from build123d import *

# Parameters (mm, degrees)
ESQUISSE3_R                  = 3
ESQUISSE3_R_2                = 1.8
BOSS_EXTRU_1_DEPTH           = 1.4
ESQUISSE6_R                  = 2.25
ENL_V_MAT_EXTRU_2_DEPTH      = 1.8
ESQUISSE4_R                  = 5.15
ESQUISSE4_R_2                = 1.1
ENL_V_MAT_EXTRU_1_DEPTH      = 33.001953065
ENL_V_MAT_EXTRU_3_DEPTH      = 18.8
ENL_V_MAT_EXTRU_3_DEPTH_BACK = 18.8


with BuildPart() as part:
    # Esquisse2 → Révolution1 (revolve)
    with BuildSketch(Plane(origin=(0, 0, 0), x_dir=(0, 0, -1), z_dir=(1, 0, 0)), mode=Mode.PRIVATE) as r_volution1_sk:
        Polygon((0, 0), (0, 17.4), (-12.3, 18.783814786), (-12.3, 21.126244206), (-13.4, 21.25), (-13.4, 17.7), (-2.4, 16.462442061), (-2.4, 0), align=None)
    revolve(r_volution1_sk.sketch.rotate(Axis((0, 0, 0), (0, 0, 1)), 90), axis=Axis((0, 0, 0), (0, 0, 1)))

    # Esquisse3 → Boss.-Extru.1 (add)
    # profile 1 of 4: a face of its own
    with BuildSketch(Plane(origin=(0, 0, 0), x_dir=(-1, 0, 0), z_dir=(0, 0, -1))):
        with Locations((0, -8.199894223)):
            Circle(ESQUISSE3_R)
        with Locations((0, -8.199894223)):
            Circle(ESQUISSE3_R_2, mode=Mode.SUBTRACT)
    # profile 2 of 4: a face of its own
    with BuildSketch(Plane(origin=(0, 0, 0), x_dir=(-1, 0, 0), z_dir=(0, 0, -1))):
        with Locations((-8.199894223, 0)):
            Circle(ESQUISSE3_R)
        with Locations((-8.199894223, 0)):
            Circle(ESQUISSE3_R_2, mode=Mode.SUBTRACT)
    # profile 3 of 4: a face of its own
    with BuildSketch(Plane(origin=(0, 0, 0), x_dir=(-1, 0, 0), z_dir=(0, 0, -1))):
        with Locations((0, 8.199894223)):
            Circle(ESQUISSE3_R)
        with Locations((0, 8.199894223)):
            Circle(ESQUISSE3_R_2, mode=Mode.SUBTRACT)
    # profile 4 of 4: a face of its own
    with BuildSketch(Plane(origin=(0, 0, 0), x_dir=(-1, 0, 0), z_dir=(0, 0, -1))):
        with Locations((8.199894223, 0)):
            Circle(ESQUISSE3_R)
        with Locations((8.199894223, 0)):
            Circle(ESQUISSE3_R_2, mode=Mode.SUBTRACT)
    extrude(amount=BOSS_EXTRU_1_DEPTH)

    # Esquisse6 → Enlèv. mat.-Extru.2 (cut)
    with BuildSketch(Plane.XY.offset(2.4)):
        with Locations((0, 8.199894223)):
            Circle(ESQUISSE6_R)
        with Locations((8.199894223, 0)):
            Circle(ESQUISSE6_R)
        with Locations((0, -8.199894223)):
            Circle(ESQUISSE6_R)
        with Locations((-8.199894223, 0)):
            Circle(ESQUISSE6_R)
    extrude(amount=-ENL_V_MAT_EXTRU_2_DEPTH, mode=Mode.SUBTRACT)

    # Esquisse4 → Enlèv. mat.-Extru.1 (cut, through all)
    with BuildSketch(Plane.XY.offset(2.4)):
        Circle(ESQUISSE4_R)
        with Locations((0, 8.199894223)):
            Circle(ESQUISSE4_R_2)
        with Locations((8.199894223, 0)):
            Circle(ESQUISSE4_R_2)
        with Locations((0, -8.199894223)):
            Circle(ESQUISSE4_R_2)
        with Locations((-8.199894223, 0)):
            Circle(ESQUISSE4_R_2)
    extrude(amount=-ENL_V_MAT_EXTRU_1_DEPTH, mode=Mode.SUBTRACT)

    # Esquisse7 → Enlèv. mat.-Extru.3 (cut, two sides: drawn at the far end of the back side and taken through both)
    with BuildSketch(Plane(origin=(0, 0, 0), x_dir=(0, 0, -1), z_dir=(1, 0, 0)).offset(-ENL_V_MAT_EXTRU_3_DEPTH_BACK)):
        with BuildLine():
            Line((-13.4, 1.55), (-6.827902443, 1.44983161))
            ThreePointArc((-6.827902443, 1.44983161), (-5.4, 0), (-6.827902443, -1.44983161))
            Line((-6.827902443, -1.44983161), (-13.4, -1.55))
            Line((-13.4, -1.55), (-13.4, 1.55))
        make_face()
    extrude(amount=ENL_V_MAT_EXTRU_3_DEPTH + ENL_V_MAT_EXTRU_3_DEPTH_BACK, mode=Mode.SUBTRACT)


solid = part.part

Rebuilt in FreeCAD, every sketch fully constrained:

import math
import FreeCAD as App
import Part
import Sketcher
from FreeCAD import Vector


def add_polygon(sketch, points):
    """Adds a closed chain of lines whose ends are joined by coincident constraints."""
    first, n = sketch.GeometryCount, len(points)
    for a, b in zip(points, points[1:] + points[:1]):
        sketch.addGeometry(Part.LineSegment(App.Vector(*a, 0), App.Vector(*b, 0)), False)
    for i in range(n):
        sketch.addConstraint(Sketcher.Constraint("Coincident", first + i, 2, first + (i + 1) % n, 1))

doc = App.newDocument("Part")
body = doc.addObject("PartDesign::Body", "Body")

sketch1 = body.newObject("Sketcher::SketchObject", "Sketch")
sketch1.AttachmentSupport = (doc.getObject("YZ_Plane"), [""])
sketch1.MapMode = "FlatFace"
add_polygon(sketch1, [(0, 0), (17.4, 0), (18.783815, 12.3), (21.126244, 12.3), (21.25, 13.4), (17.7, 13.4), (16.462442, 2.4), (0, 2.4)])
sketch1.addConstraint([
    Sketcher.Constraint("Horizontal", 0),
    Sketcher.Constraint("Horizontal", 2),
    Sketcher.Constraint("Horizontal", 4),
    Sketcher.Constraint("Horizontal", 6),
    Sketcher.Constraint("Vertical", 7),
    Sketcher.Constraint("Coincident", 7, 2, -1, 1),
    Sketcher.Constraint("Parallel", 1, 3),
    Sketcher.Constraint("Parallel", 3, 5),
    Sketcher.Constraint("DistanceX", 0, 1, 0, 2, 17.4),
    Sketcher.Constraint("DistanceY", 7, 2, 7, 1, 2.4),
    Sketcher.Constraint("DistanceY", 5, 2, 4, 2, 11.0),
    Sketcher.Constraint("DistanceX", 4, 2, 4, 1, 3.55),
    Sketcher.Constraint("DistanceY", -1, 1, 1, 2, 12.3),
    Sketcher.Constraint("DistanceX", -1, 1, 4, 2, 17.7),
    Sketcher.Constraint("Distance", 1, 12.377598),
])
revolution = body.newObject("PartDesign::Revolution", "Revolution")
revolution.Profile = sketch1
revolution.ReferenceAxis = (sketch1, ["V_Axis"])
revolution.Angle = 360

sketch2 = body.newObject("Sketcher::SketchObject", "Sketch001")
sketch2.AttachmentSupport = (doc.getObject("XY_Plane"), [""])
sketch2.MapMode = "FlatFace"
sketch2.addGeometry([
    Part.Circle(Vector(0, -8.199894, 0), Vector(0, 0, 1), 3),
    Part.Circle(Vector(0, -8.199894, 0), Vector(0, 0, 1), 1.8),
    Part.Circle(Vector(8.199894, 0, 0), Vector(0, 0, 1), 3),
    Part.Circle(Vector(8.199894, 0, 0), Vector(0, 0, 1), 1.8),
    Part.Circle(Vector(0, 8.199894, 0), Vector(0, 0, 1), 3),
    Part.Circle(Vector(0, 8.199894, 0), Vector(0, 0, 1), 1.8),
    Part.Circle(Vector(-8.199894, 0, 0), Vector(0, 0, 1), 3),
    Part.Circle(Vector(-8.199894, 0, 0), Vector(0, 0, 1), 1.8),
], False)
sketch2.addConstraint([
    Sketcher.Constraint("Coincident", 1, 3, 0, 3),
    Sketcher.Constraint("Coincident", 3, 3, 2, 3),
    Sketcher.Constraint("Coincident", 5, 3, 4, 3),
    Sketcher.Constraint("Coincident", 7, 3, 6, 3),
    Sketcher.Constraint("Equal", 0, 2),
    Sketcher.Constraint("Equal", 1, 3),
    Sketcher.Constraint("Equal", 2, 4),
    Sketcher.Constraint("Equal", 3, 5),
    Sketcher.Constraint("Equal", 4, 6),
    Sketcher.Constraint("Equal", 5, 7),
    Sketcher.Constraint("Symmetric", 0, 3, 4, 3, -1, 1),
    Sketcher.Constraint("Symmetric", 2, 3, 6, 3, -1, 1),
    Sketcher.Constraint("PointOnObject", 0, 3, -2),
    Sketcher.Constraint("PointOnObject", 2, 3, -1),
    Sketcher.Constraint("Diameter", 0, 6.0),
    Sketcher.Constraint("Diameter", 1, 3.6),
    Sketcher.Constraint("DistanceY", 0, 3, 4, 3, 16.399788),
    Sketcher.Constraint("DistanceX", 6, 3, 2, 3, 16.399788),
])
pad1 = body.newObject("PartDesign::Pad", "Pad")
pad1.Profile = sketch2
pad1.Length = 1.4
pad1.Reversed = True

sketch3 = body.newObject("Sketcher::SketchObject", "Sketch002")
sketch3.AttachmentSupport = (doc.getObject("XY_Plane"), [""])
sketch3.MapMode = "FlatFace"
sketch3.AttachmentOffset = App.Placement(Vector(0, 0, 2.4), App.Rotation())
sketch3.addGeometry([
    Part.Circle(Vector(0, 8.199894, 0), Vector(0, 0, 1), 2.25),
    Part.Circle(Vector(8.199894, 0, 0), Vector(0, 0, 1), 2.25),
    Part.Circle(Vector(0, -8.199894, 0), Vector(0, 0, 1), 2.25),
    Part.Circle(Vector(-8.199894, 0, 0), Vector(0, 0, 1), 2.25),
], False)
sketch3.addConstraint([
    Sketcher.Constraint("Equal", 0, 1),
    Sketcher.Constraint("Equal", 1, 2),
    Sketcher.Constraint("Equal", 2, 3),
    Sketcher.Constraint("Symmetric", 0, 3, 2, 3, -1, 1),
    Sketcher.Constraint("Symmetric", 1, 3, 3, 3, -1, 1),
    Sketcher.Constraint("PointOnObject", 0, 3, -2),
    Sketcher.Constraint("PointOnObject", 1, 3, -1),
    Sketcher.Constraint("Diameter", 0, 4.5),
    Sketcher.Constraint("DistanceY", 2, 3, 0, 3, 16.399788),
    Sketcher.Constraint("DistanceX", 3, 3, 1, 3, 16.399788),
])
pocket1 = body.newObject("PartDesign::Pocket", "Pocket")
pocket1.Profile = sketch3
pocket1.Length = 1.8

sketch4 = body.newObject("Sketcher::SketchObject", "Sketch003")
sketch4.AttachmentSupport = (doc.getObject("XY_Plane"), [""])
sketch4.MapMode = "FlatFace"
sketch4.AttachmentOffset = App.Placement(Vector(0, 0, 2.4), App.Rotation())
sketch4.addGeometry([
    Part.Circle(Vector(0, 0, 0), Vector(0, 0, 1), 5.15),
    Part.Circle(Vector(0, 8.199894, 0), Vector(0, 0, 1), 1.1),
    Part.Circle(Vector(8.199894, 0, 0), Vector(0, 0, 1), 1.1),
    Part.Circle(Vector(0, -8.199894, 0), Vector(0, 0, 1), 1.1),
    Part.Circle(Vector(-8.199894, 0, 0), Vector(0, 0, 1), 1.1),
], False)
sketch4.addConstraint([
    Sketcher.Constraint("Coincident", 0, 3, -1, 1),
    Sketcher.Constraint("Equal", 1, 2),
    Sketcher.Constraint("Equal", 2, 3),
    Sketcher.Constraint("Equal", 3, 4),
    Sketcher.Constraint("Symmetric", 1, 3, 3, 3, -1, 1),
    Sketcher.Constraint("Symmetric", 2, 3, 4, 3, -1, 1),
    Sketcher.Constraint("PointOnObject", 1, 3, -2),
    Sketcher.Constraint("PointOnObject", 2, 3, -1),
    Sketcher.Constraint("Diameter", 0, 10.3),
    Sketcher.Constraint("Diameter", 1, 2.2),
    Sketcher.Constraint("DistanceY", 3, 3, 1, 3, 16.399788),
    Sketcher.Constraint("DistanceX", 4, 3, 2, 3, 16.399788),
])
pocket2 = body.newObject("PartDesign::Pocket", "Pocket001")
pocket2.Profile = sketch4
pocket2.Type = "ThroughAll"

sketch5 = body.newObject("Sketcher::SketchObject", "Sketch004")
sketch5.AttachmentSupport = (doc.getObject("YZ_Plane"), [""])
sketch5.MapMode = "FlatFace"
sketch5.addGeometry([
    Part.LineSegment(Vector(1.449832, 6.827902, 0), Vector(1.55, 13.4, 0)),
    Part.LineSegment(Vector(1.55, 13.4, 0), Vector(-1.55, 13.4, 0)),
    Part.LineSegment(Vector(-1.55, 13.4, 0), Vector(-1.449832, 6.827902, 0)),
    Part.ArcOfCircle(Part.Circle(Vector(0, 6.85, 0), Vector(0, 0, 1), 1.45), math.radians(-179.126796), math.radians(-0.873204)),
], False)
sketch5.addConstraint([
    Sketcher.Constraint("Coincident", 0, 2, 1, 1),
    Sketcher.Constraint("Coincident", 1, 2, 2, 1),
    Sketcher.Constraint("Tangent", 2, 2, 3, 1),
    Sketcher.Constraint("Tangent", 3, 2, 0, 1),
    Sketcher.Constraint("Horizontal", 1),
    Sketcher.Constraint("Symmetric", 2, 2, 3, 2, -2),
    Sketcher.Constraint("Radius", 3, 1.45),
    Sketcher.Constraint("DistanceX", 1, 2, 1, 1, 3.1),
    Sketcher.Constraint("DistanceY", -1, 1, 0, 2, 13.4),
    Sketcher.Constraint("DistanceY", -1, 1, 3, 3, 6.85),
])
pocket3 = body.newObject("PartDesign::Pocket", "Pocket002")
pocket3.Profile = sketch5
pocket3.Type = "TwoLengths"
pocket3.Length = 18.8
pocket3.Length2 = 18.8
pocket3.Reversed = True

doc.recompute()
